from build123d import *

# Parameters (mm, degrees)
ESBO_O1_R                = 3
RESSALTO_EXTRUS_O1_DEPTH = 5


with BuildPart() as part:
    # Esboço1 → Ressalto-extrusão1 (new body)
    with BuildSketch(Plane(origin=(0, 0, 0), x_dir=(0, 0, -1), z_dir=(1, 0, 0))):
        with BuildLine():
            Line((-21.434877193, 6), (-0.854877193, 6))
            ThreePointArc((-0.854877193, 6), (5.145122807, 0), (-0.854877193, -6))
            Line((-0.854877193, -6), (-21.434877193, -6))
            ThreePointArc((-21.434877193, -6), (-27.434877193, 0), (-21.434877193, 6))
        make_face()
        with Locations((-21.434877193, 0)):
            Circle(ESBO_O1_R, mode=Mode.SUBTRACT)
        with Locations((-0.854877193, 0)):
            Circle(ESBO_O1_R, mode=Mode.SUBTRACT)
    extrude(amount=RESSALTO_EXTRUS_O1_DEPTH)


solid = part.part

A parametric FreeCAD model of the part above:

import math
import FreeCAD as App
import Part
import Sketcher
from FreeCAD import Vector

doc = App.newDocument("Part")
body = doc.addObject("PartDesign::Body", "Body")

# Sketch on YZ plane
sketch1 = body.newObject("Sketcher::SketchObject", "Sketch")
sketch1.AttachmentSupport = (doc.getObject("YZ_Plane"), [""])
sketch1.MapMode = "FlatFace"
sketch1.addGeometry(Part.LineSegment(Vector(6, 0.9, 0), Vector(6, 21.4, 0)), False)
sketch1.addGeometry(Part.ArcOfCircle(Part.Circle(Vector(0, 21.4, 0), Vector(0, 0, 1), 6), math.radians(0), math.radians(180)), False)
sketch1.addGeometry(Part.LineSegment(Vector(-6, 21.4, 0), Vector(-6, 0.9, 0)), False)
sketch1.addGeometry(Part.ArcOfCircle(Part.Circle(Vector(0, 0.9, 0), Vector(0, 0, 1), 6), math.radians(180), math.radians(360)), False)
sketch1.addGeometry(Part.Circle(Vector(0, 0.9, 0), Vector(0, 0, 1), 3), False)
sketch1.addGeometry(Part.Circle(Vector(0, 21.4, 0), Vector(0, 0, 1), 3), False)
sketch1.addConstraint(Sketcher.Constraint("Tangent", 0, 2, 1, 1))
sketch1.addConstraint(Sketcher.Constraint("Tangent", 1, 2, 2, 1))
sketch1.addConstraint(Sketcher.Constraint("Tangent", 2, 2, 3, 1))
sketch1.addConstraint(Sketcher.Constraint("Tangent", 3, 2, 0, 1))
sketch1.addConstraint(Sketcher.Constraint("Vertical", 0))
sketch1.addConstraint(Sketcher.Constraint("Vertical", 2))
sketch1.addConstraint(Sketcher.Constraint("Coincident", 4, 3, 3, 3))
sketch1.addConstraint(Sketcher.Constraint("Coincident", 5, 3, 1, 3))
sketch1.addConstraint(Sketcher.Constraint("Equal", 4, 5))
sketch1.addConstraint(Sketcher.Constraint("PointOnObject", 1, 3, -2))
sketch1.addConstraint(Sketcher.Constraint("Diameter", 4, 6.0))
sketch1.addConstraint(Sketcher.Constraint("Radius", 1, 6.0))
sketch1.addConstraint(Sketcher.Constraint("DistanceY", 0, 1, 0, 2, 20.58))
sketch1.addConstraint(Sketcher.Constraint("DistanceY", -1, 1, 1, 3, 21.434877))
pad1 = body.newObject("PartDesign::Pad", "Pad")
pad1.Profile = sketch1
pad1.Length = 5

doc.recompute()
